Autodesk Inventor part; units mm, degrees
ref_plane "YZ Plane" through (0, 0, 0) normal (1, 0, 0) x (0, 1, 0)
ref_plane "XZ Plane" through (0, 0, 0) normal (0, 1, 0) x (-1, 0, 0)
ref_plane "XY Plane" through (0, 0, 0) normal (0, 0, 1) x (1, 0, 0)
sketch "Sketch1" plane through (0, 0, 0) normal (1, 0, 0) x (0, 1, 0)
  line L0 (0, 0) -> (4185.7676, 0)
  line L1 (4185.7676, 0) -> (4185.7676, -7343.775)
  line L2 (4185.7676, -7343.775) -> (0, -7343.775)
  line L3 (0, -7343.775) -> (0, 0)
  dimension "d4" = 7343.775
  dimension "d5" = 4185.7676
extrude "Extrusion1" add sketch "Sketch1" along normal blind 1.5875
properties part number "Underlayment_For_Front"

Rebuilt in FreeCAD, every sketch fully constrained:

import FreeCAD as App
import Part
import Sketcher
from FreeCAD import Vector
Q = App.Units.Quantity

doc = App.newDocument("Part")
params = doc.addObject("Spreadsheet::Sheet", "Params")
for row, (alias, value) in enumerate([
    ("sketch1_width", "164.794 in"),
    ("sketch1_height", "289.125 in"),
    ("pad1_length", "0.0625 in"),
], start=1):
    params.set(f"A{row}", alias)
    params.set(f"B{row}", "=" + value)
    params.setAlias(f"B{row}", alias)

body = doc.addObject("PartDesign::Body", "Body")

# Sketch on YZ plane
sketch1 = doc.addObject("Sketcher::SketchObject", "Sketch")
body.addObject(sketch1)
sketch1.AttachmentSupport = (doc.YZ_Plane, [""])
sketch1.MapMode = "FlatFace"
sketch1.addGeometry([
    Part.LineSegment(Vector(4186, 0, 0), Vector(0, 0, 0)),
    Part.LineSegment(Vector(0, 0, 0), Vector(0, -7344, 0)),
    Part.LineSegment(Vector(0, -7344, 0), Vector(4186, -7344, 0)),
    Part.LineSegment(Vector(4186, -7344, 0), Vector(4186, 0, 0)),
], False)
sketch1.addConstraint([
    Sketcher.Constraint("Coincident", 0, 2, 1, 1),
    Sketcher.Constraint("Coincident", 1, 2, 2, 1),
    Sketcher.Constraint("Coincident", 2, 2, 3, 1),
    Sketcher.Constraint("Coincident", 3, 2, 0, 1),
    Sketcher.Constraint("Horizontal", 0),
    Sketcher.Constraint("Vertical", 1),
    Sketcher.Constraint("Horizontal", 2),
    Sketcher.Constraint("Vertical", 3),
    Sketcher.Constraint("Coincident", 0, 2, -1, 1),
    Sketcher.Constraint("DistanceX", 0, 2, 0, 1, Q("164.794 in")),
    Sketcher.Constraint("DistanceY", 1, 2, 1, 1, Q("289.125 in")),
])
sketch1.setExpression("Constraints[9]", "Params.sketch1_width")
sketch1.setExpression("Constraints[10]", "Params.sketch1_height")
pad1 = doc.addObject("PartDesign::Pad", "Pad")
body.addObject(pad1)
pad1.Profile = sketch1
pad1.setExpression("Length", "Params.pad1_length")

doc.recompute()
